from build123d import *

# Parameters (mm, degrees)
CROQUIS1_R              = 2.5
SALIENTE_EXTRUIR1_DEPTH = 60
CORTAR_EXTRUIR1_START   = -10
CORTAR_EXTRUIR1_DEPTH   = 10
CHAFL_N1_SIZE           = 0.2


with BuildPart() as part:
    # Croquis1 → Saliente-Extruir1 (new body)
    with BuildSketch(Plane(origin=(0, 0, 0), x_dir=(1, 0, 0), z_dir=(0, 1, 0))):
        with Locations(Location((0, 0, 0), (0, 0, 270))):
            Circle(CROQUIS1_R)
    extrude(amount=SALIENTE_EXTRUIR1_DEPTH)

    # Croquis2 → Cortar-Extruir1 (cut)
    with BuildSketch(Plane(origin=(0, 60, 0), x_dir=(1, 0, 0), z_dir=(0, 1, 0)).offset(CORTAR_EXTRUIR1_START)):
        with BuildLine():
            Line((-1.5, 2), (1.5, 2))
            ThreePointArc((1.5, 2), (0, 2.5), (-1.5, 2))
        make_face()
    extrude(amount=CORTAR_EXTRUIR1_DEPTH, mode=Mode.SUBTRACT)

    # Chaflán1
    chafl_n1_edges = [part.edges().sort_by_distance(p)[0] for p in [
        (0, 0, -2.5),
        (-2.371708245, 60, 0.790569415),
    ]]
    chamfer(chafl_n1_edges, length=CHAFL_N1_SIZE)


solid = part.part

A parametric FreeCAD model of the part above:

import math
import FreeCAD as App
import Part
import Sketcher


def edges_at(feature, points):
    """Names of the edges that pass closest to the given points."""
    edges = feature.Shape.Edges
    near = lambda p: min(range(len(edges)), key=lambda i: edges[i].distToShape(Part.Vertex(*p))[0])
    return sorted({f"Edge{near(p) + 1}" for p in points})

doc = App.newDocument("Part")
body = doc.addObject("PartDesign::Body", "Body")

# Sketch on XZ plane
sketch1 = body.newObject("Sketcher::SketchObject", "Sketch")
sketch1.AttachmentSupport = (doc.getObject("XZ_Plane"), [""])
sketch1.MapMode = "FlatFace"
sketch1.addGeometry(Part.Circle(App.Vector(0, 0, 0), App.Vector(0, 0, 1), 2.5), False)
sketch1.addConstraint([
    Sketcher.Constraint("Coincident", 0, 3, -1, 1),
    Sketcher.Constraint("Diameter", 0, 5.0),
])
pad1 = body.newObject("PartDesign::Pad", "Pad")
pad1.Profile = sketch1
pad1.Length = 60
pad1.Reversed = True

# Sketch on XZ plane
sketch2 = body.newObject("Sketcher::SketchObject", "Sketch001")
sketch2.AttachmentSupport = (doc.getObject("XZ_Plane"), [""])
sketch2.MapMode = "FlatFace"
sketch2.AttachmentOffset = App.Placement(App.Vector(0, 0, -50), App.Rotation())
sketch2.addGeometry([
    Part.LineSegment(App.Vector(-1.5, -2, 0), App.Vector(1.5, -2, 0)),
    Part.ArcOfCircle(Part.Circle(App.Vector(0, 0, 0), App.Vector(0, 0, 1), 2.5), math.radians(-127), math.radians(-53)),
], False)
sketch2.addConstraint([
    Sketcher.Constraint("Coincident", 0, 1, 1, 1),
    Sketcher.Constraint("Coincident", 1, 2, 0, 2),
    Sketcher.Constraint("Horizontal", 0),
    Sketcher.Constraint("Coincident", 1, 3, -1, 1),
    Sketcher.Constraint("Radius", 1, 2.5),
    Sketcher.Constraint("DistanceX", 0, 1, 0, 2, 3.0),
])
pocket1 = body.newObject("PartDesign::Pocket", "Pocket")
pocket1.Profile = sketch2
pocket1.Length = 10
doc.recompute()

chamfer = body.newObject("PartDesign::Chamfer", "Chamfer")
chamfer.Base = (pocket1, edges_at(pocket1, [(0, 0, -2.5), (-2.372, 60, 0.791)]))
chamfer.Size = 0.2

doc.recompute()
